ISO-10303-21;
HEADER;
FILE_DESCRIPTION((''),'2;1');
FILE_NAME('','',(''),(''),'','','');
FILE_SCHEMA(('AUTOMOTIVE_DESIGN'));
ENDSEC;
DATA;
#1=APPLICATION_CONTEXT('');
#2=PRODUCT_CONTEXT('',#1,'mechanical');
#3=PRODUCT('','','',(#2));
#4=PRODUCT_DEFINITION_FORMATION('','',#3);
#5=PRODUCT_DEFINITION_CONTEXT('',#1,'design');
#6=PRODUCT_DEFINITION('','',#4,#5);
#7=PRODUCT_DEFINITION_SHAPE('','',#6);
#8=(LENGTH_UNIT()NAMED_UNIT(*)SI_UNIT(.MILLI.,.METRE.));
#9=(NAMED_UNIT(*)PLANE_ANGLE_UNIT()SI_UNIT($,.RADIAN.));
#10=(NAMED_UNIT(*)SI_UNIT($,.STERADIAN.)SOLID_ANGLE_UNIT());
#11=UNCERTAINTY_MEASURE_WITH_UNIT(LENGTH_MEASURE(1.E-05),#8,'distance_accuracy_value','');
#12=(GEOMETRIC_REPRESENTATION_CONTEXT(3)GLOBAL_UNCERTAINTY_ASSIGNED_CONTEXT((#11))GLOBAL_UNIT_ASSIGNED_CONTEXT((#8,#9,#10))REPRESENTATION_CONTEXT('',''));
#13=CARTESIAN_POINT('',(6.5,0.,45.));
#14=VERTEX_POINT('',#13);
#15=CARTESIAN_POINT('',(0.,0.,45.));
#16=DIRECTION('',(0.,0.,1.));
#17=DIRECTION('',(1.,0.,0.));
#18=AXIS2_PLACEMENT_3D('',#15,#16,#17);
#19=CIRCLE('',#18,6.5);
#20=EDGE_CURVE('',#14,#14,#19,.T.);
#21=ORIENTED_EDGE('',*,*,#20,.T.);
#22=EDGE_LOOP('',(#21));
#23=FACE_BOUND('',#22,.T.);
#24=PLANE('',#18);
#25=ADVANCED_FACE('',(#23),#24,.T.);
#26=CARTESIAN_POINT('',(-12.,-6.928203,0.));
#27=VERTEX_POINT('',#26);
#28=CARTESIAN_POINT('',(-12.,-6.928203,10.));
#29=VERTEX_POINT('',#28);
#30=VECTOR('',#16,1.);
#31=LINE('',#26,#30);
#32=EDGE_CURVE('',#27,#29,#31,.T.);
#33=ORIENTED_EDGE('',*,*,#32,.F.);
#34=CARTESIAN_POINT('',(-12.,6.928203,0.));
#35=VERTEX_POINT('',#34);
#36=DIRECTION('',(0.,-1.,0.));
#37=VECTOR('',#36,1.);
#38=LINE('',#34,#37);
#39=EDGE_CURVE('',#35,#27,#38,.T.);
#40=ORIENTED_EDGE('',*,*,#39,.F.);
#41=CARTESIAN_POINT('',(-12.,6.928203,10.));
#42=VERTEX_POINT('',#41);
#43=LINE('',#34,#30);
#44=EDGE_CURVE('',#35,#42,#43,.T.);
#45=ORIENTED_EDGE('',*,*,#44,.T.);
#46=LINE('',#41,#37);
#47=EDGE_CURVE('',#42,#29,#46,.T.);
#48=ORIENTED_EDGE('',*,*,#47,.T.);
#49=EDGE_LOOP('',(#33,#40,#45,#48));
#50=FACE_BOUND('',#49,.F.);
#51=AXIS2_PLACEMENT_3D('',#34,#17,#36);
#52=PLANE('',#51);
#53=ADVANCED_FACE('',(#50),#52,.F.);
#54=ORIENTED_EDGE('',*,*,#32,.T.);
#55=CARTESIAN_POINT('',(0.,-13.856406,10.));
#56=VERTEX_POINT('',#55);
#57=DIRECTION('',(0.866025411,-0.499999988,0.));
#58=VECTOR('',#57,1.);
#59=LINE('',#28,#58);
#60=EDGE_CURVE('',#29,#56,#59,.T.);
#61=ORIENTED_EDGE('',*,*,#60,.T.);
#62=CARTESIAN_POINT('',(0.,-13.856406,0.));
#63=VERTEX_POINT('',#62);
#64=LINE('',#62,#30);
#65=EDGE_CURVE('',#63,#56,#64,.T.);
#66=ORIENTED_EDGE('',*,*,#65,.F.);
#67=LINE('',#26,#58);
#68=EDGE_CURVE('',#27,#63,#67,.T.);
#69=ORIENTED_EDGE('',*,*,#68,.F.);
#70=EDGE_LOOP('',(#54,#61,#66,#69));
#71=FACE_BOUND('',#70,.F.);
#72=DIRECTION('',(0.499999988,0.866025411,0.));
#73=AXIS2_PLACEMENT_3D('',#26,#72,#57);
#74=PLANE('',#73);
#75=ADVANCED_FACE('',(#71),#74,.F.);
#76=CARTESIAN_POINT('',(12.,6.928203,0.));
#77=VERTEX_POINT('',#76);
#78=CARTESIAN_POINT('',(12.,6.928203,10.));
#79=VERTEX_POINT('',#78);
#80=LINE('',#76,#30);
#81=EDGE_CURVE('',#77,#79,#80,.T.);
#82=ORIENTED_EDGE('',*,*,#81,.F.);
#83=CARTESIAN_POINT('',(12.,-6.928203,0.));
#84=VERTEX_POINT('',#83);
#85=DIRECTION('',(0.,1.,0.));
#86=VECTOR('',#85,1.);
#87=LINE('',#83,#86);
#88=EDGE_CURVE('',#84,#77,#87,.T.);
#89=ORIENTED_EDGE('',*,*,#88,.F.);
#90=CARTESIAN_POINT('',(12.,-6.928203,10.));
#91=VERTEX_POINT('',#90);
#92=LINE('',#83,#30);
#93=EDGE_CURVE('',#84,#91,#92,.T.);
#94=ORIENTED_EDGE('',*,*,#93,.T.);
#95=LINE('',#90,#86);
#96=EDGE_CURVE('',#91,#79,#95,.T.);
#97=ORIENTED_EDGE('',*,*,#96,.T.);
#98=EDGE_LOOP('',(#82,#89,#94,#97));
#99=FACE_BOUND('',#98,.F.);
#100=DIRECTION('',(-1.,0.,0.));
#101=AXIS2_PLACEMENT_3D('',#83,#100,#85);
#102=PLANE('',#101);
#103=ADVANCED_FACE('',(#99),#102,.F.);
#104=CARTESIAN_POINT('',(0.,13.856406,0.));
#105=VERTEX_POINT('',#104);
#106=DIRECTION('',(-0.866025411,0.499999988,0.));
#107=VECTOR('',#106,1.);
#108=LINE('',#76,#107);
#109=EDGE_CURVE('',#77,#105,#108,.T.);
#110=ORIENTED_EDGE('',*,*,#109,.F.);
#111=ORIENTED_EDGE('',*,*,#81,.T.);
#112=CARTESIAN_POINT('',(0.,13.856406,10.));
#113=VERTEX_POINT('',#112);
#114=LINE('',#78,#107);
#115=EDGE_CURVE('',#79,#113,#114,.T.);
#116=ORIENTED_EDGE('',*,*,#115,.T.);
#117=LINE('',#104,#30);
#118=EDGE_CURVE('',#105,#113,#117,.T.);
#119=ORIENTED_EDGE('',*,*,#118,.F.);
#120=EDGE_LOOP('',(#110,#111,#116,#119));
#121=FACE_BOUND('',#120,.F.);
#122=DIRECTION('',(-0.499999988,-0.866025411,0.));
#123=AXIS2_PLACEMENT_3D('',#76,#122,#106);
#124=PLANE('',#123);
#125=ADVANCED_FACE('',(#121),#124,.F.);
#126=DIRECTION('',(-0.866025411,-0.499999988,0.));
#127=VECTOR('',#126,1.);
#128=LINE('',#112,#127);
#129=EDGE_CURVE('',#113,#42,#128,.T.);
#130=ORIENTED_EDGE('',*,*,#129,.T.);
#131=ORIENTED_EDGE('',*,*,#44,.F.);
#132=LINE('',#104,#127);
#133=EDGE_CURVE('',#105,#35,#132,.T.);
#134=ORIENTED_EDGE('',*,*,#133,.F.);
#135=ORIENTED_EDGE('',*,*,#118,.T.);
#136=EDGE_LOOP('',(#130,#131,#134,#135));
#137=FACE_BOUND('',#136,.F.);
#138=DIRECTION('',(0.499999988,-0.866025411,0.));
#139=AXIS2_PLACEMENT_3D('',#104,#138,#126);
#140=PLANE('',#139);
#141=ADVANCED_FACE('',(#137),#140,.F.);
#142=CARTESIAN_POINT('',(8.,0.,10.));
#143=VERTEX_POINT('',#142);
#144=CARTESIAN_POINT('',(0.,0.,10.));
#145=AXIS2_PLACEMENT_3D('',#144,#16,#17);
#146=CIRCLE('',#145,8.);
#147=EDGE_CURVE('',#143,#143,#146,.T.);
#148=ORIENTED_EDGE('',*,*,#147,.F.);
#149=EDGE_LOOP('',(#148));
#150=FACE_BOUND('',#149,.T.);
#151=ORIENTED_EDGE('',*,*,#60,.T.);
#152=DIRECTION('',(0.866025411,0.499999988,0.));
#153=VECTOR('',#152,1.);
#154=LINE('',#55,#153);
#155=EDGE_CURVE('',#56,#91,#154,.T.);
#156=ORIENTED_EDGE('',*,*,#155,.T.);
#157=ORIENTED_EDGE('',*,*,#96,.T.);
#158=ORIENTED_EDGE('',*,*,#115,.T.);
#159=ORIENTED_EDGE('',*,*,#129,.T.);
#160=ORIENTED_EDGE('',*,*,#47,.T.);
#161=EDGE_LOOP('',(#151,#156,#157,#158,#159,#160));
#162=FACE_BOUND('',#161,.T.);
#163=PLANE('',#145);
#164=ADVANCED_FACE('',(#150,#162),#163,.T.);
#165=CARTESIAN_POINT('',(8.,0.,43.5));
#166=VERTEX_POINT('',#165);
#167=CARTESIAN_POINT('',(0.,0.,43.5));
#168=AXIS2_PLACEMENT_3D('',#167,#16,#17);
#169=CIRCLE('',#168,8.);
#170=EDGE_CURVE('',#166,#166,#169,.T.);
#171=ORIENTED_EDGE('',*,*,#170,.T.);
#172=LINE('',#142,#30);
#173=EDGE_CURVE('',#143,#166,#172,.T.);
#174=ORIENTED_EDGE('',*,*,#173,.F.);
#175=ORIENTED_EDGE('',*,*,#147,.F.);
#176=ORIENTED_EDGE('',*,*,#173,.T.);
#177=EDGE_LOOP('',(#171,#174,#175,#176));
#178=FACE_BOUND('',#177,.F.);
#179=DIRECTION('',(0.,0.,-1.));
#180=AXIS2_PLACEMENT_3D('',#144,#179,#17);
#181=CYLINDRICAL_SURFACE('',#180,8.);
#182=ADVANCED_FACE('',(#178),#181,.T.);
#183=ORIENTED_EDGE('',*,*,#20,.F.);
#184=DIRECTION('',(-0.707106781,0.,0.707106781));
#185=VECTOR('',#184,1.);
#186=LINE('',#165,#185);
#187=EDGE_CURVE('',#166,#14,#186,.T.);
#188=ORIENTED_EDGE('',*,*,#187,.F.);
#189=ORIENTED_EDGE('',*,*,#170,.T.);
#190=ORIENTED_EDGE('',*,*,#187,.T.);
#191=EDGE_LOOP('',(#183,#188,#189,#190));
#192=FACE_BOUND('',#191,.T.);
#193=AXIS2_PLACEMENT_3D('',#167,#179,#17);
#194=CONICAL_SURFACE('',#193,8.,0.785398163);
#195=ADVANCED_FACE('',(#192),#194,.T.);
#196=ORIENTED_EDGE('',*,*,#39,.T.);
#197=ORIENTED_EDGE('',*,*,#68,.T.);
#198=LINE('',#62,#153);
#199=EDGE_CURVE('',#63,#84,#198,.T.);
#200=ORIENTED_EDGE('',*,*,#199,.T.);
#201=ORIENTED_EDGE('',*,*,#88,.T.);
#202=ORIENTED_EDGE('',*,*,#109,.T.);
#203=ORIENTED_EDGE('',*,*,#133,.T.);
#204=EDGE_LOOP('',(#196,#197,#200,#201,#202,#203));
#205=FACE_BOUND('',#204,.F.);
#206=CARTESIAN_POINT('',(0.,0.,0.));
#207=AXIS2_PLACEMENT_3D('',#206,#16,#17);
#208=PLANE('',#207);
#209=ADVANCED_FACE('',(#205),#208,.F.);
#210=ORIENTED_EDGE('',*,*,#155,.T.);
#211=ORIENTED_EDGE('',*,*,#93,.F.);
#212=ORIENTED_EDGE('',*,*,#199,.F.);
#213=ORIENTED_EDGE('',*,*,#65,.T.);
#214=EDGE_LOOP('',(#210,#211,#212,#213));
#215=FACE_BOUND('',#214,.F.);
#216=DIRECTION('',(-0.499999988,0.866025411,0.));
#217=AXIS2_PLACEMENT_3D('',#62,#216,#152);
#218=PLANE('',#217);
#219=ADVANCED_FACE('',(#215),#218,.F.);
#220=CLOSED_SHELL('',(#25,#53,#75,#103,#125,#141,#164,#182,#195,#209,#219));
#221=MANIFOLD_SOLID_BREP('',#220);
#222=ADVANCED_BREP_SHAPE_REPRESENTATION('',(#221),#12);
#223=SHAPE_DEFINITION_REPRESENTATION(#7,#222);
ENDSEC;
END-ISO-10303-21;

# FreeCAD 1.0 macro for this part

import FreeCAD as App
import Part
import Sketcher
from FreeCAD import Vector
Q = App.Units.Quantity


def edges_at(feature, points):
    """Names of the edges that pass closest to the given points."""
    edges = feature.Shape.Edges
    near = lambda p: min(range(len(edges)), key=lambda i: edges[i].distToShape(Part.Vertex(*p))[0])
    return sorted({f"Edge{near(p) + 1}" for p in points})


def add_polygon(sketch, points):
    """Adds a closed chain of lines whose ends are joined by coincident constraints."""
    first, n = sketch.GeometryCount, len(points)
    for a, b in zip(points, points[1:] + points[:1]):
        sketch.addGeometry(Part.LineSegment(App.Vector(*a, 0), App.Vector(*b, 0)), False)
    for i in range(n):
        sketch.addConstraint(Sketcher.Constraint("Coincident", first + i, 2, first + (i + 1) % n, 1))

doc = App.newDocument("Part")
params = doc.addObject("Spreadsheet::Sheet", "Params")
for row, (alias, value) in enumerate([
    ("pad1_length", "10 mm"),
    ("sketch2_diameter", "16 mm"),
    ("pad2_length", "35 mm"),
    ("chamfer_size", "1.5 mm"),
], start=1):
    params.set(f"A{row}", alias)
    params.set(f"B{row}", "=" + value)
    params.setAlias(f"B{row}", alias)

body = doc.addObject("PartDesign::Body", "Body")

# Sketch on XY plane
sketch1 = body.newObject("Sketcher::SketchObject", "Sketch")
sketch1.AttachmentSupport = (doc.getObject("XY_Plane"), [""])
sketch1.MapMode = "FlatFace"
add_polygon(sketch1, [(12, -7), (12, 7), (0, 14), (-12, 7), (-12, -7), (0, -14)])  # lines 0-5
sketch1.addConstraint([
    Sketcher.Constraint("Vertical", 0),
    Sketcher.Constraint("Vertical", 3),
    Sketcher.Constraint("Symmetric", 0, 2, 3, 2, -1, 1),
    Sketcher.Constraint("Symmetric", 1, 2, 4, 2, -1, 1),
    Sketcher.Constraint("PointOnObject", 1, 2, -2),
    Sketcher.Constraint("Parallel", 2, 5),
    Sketcher.Constraint("Horizontal", 0, 2, 2, 2),
    Sketcher.Constraint("Angle", 1, Q("150.000001 deg")),
    Sketcher.Constraint("DistanceX", -1, 1, 0, 2, Q("12 mm")),
    Sketcher.Constraint("DistanceY", 0, 1, 0, 2, Q("13.856406 mm")),
])
pad1 = body.newObject("PartDesign::Pad", "Pad")
pad1.Profile = sketch1
pad1.setExpression("Length", "Params.pad1_length")

# Sketch on XY plane
sketch2 = body.newObject("Sketcher::SketchObject", "Sketch001")
sketch2.AttachmentSupport = (doc.getObject("XY_Plane"), [""])
sketch2.MapMode = "FlatFace"
sketch2.AttachmentOffset = App.Placement(Vector(0, 0, 10), App.Rotation())
sketch2.addGeometry(Part.Circle(Vector(0, 0, 0), Vector(0, 0, 1), 8), False)
sketch2.addConstraint([
    Sketcher.Constraint("Coincident", 0, 3, -1, 1),
    Sketcher.Constraint("Diameter", 0, Q("16 mm")),
])
sketch2.setExpression("Constraints[1]", "Params.sketch2_diameter")
pad2 = body.newObject("PartDesign::Pad", "Pad001")
pad2.Profile = sketch2
pad2.setExpression("Length", "Params.pad2_length")
doc.recompute()

chamfer = body.newObject("PartDesign::Chamfer", "Chamfer")
chamfer.Base = (pad2, edges_at(pad2, [(-8, 0, 45)]))
chamfer.setExpression("Size", "Params.chamfer_size")

doc.recompute()
